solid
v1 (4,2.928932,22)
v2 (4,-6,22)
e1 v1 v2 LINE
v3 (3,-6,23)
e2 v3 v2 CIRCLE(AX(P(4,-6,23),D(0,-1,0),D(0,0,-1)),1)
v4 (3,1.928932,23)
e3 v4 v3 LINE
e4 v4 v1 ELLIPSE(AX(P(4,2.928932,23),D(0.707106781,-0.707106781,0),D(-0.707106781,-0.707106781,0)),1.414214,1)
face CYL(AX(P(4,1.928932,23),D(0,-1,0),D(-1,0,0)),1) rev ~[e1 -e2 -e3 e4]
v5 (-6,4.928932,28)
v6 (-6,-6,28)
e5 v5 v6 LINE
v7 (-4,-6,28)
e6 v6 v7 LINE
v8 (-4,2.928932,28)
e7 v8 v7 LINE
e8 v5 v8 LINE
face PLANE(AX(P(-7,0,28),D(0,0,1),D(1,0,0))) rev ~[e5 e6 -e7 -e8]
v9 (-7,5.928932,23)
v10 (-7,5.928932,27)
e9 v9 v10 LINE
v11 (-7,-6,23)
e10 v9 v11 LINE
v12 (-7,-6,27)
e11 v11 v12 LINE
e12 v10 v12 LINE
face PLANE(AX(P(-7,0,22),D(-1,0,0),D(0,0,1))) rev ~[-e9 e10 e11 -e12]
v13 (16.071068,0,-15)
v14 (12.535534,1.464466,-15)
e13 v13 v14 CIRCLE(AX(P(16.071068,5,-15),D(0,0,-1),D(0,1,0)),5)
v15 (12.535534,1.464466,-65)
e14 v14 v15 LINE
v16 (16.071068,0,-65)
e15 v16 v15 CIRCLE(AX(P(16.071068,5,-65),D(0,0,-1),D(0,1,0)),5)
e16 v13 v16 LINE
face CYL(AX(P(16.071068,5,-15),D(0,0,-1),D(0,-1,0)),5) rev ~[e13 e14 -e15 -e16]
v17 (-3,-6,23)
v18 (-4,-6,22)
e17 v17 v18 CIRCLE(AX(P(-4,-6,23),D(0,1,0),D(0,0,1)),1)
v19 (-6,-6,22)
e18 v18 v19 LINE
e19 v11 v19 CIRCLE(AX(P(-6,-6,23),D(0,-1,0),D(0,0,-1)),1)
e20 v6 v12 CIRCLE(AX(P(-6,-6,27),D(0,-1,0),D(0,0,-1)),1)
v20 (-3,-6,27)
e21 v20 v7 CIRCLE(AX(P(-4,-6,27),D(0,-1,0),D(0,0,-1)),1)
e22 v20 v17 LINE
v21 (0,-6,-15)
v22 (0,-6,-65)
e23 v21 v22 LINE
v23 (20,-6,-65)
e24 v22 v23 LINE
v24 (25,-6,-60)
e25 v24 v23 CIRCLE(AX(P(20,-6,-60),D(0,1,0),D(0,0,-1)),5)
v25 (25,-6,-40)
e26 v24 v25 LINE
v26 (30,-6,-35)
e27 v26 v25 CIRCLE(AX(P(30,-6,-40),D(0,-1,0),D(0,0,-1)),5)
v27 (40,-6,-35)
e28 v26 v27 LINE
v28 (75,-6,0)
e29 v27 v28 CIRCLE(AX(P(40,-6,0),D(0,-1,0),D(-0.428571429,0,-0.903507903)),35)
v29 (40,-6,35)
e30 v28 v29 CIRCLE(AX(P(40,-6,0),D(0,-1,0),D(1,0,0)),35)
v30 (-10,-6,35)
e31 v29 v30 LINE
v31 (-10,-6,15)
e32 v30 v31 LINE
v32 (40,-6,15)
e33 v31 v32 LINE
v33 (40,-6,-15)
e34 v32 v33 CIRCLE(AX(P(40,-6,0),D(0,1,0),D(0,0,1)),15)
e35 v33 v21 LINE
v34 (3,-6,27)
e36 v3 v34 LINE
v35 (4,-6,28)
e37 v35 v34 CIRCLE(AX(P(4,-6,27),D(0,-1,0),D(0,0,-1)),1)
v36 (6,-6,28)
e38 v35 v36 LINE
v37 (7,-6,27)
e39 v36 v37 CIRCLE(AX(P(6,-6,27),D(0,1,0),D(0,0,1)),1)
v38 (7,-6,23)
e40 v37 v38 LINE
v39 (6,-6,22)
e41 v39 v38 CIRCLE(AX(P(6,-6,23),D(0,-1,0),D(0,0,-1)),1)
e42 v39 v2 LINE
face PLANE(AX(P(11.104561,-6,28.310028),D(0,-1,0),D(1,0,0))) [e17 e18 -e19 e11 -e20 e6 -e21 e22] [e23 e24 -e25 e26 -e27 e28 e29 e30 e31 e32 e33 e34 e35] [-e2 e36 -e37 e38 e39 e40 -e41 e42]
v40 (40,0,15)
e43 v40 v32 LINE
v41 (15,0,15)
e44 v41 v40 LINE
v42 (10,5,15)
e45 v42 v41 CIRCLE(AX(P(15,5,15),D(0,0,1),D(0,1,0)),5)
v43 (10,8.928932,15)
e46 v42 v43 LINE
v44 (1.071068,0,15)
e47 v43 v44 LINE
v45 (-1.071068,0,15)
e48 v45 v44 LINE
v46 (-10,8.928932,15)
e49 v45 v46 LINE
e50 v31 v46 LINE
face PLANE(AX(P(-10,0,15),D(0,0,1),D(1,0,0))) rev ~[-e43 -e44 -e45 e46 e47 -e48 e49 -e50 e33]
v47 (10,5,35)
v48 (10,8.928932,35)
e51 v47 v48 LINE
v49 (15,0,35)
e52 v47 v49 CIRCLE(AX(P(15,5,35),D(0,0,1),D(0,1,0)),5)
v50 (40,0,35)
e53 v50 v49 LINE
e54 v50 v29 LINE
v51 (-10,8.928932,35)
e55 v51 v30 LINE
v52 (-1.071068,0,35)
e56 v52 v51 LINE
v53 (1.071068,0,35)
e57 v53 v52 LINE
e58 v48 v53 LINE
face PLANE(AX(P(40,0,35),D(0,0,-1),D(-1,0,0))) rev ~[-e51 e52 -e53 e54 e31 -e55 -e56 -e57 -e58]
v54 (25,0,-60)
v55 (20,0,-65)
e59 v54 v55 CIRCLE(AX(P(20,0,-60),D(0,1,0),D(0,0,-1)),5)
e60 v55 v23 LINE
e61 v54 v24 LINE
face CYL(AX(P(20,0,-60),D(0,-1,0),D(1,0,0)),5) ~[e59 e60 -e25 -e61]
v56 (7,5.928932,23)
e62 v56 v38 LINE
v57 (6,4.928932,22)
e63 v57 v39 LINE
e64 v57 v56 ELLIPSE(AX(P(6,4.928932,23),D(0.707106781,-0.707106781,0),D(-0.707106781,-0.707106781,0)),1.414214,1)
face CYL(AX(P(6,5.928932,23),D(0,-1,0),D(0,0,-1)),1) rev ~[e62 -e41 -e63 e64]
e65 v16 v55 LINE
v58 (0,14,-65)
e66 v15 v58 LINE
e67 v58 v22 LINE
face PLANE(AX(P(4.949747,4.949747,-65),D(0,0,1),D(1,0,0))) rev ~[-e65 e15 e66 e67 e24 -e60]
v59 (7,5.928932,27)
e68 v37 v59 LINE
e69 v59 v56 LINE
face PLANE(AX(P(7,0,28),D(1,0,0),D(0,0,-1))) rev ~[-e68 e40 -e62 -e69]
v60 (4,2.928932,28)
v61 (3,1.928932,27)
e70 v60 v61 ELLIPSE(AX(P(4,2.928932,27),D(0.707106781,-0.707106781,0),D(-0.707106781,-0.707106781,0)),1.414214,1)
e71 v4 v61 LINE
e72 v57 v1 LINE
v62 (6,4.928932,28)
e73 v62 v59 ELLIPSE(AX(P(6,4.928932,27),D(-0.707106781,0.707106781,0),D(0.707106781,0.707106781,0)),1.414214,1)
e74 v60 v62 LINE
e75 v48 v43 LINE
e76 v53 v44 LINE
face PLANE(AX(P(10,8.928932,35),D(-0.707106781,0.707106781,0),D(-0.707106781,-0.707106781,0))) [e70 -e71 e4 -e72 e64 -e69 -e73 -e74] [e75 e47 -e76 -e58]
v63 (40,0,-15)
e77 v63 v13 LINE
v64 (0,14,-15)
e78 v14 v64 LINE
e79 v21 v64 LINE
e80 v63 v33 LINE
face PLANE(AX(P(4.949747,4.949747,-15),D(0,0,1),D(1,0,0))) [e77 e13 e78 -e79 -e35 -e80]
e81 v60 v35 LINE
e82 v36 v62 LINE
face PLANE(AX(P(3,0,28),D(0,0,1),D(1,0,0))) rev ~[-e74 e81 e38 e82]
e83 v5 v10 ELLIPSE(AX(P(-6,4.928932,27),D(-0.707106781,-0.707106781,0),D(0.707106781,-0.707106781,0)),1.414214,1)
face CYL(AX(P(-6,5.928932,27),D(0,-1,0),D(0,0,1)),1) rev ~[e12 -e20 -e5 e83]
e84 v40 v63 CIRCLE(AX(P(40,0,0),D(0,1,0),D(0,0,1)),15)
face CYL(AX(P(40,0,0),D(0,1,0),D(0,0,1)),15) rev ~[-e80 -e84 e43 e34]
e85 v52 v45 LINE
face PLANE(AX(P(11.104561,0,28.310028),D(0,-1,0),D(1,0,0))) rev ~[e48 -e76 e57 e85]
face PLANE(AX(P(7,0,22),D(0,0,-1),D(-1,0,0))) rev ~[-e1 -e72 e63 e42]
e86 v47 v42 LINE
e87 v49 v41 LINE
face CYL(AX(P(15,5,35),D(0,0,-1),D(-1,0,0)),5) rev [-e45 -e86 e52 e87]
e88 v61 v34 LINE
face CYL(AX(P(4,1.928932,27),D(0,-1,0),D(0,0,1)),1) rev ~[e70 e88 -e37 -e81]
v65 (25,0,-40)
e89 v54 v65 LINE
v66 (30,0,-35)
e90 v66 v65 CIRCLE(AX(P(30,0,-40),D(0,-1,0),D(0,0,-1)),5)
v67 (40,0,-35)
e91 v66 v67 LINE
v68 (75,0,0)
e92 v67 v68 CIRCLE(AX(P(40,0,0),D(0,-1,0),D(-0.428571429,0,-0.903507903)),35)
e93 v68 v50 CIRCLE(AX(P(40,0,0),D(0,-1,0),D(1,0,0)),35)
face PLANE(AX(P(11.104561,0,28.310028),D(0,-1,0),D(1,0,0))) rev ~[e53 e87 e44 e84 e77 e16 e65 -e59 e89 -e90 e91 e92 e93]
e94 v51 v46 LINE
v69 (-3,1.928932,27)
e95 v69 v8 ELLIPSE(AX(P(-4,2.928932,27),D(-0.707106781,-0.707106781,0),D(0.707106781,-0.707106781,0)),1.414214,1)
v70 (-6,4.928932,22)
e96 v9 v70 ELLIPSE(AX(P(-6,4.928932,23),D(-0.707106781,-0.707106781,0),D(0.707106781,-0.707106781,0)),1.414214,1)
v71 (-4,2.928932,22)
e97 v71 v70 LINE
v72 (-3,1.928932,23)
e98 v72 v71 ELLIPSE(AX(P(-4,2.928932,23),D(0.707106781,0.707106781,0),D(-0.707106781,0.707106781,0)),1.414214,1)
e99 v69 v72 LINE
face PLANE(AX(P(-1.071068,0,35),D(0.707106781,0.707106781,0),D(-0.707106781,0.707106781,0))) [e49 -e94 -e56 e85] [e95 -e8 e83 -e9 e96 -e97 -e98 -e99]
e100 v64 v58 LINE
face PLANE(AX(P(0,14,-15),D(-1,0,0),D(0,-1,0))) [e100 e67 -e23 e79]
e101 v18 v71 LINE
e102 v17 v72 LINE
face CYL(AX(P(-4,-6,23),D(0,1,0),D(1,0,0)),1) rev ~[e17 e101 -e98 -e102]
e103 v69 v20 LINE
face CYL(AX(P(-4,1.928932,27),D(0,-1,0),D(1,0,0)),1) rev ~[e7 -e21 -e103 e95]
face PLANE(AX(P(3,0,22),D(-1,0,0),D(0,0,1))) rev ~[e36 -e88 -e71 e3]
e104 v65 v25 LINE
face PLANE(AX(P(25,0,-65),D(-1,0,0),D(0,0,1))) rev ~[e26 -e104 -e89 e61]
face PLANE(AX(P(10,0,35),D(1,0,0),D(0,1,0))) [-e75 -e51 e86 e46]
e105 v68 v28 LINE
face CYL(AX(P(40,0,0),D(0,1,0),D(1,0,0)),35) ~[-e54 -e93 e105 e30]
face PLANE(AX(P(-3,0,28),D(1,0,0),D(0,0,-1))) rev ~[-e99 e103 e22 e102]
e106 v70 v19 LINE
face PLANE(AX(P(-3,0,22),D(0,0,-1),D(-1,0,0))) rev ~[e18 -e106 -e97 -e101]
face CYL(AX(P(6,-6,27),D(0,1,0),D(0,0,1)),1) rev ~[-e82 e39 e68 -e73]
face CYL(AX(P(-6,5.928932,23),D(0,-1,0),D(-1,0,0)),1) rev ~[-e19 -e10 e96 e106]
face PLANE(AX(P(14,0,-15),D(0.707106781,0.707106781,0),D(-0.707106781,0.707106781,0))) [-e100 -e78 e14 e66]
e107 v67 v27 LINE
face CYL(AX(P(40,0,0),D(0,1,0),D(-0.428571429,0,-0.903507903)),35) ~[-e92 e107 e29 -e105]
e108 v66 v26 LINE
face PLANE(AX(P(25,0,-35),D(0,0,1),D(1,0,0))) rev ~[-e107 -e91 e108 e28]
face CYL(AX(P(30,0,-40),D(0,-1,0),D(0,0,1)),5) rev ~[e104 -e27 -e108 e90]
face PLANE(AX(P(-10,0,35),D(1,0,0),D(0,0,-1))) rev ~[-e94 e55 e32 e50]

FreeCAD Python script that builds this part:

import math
import FreeCAD as App
import Part
import Sketcher
from FreeCAD import Vector


def edges_at(feature, points):
    """Names of the edges that pass closest to the given points."""
    edges = feature.Shape.Edges
    near = lambda p: min(range(len(edges)), key=lambda i: edges[i].distToShape(Part.Vertex(*p))[0])
    return sorted({f"Edge{near(p) + 1}" for p in points})

doc = App.newDocument("Part")
params = doc.addObject("Spreadsheet::Sheet", "Params")
for row, (alias, value) in enumerate([
    ("sketch1_radius", "15 mm"),
    ("sketch1_radius2", "35 mm"),
    ("sketch1_width", "50 mm"),
    ("sketch1_width2", "40 mm"),
    ("sketch1_width3", "25 mm"),
    ("pad1_length", "6 mm"),
    ("sketch2_width", "14 mm"),
    ("pad2_length", "50 mm"),
    ("pad3_length", "20 mm"),
    ("fillet_radius", "5 mm"),
    ("sketch4_width", "4 mm"),
    ("sketch4_height", "6 mm"),
    ("fillet2_radius", "1 mm"),
], start=1):
    params.set(f"A{row}", alias)
    params.set(f"B{row}", "=" + value)
    params.setAlias(f"B{row}", alias)

body = doc.addObject("PartDesign::Body", "Body")

# Sketch on XZ plane
sketch1 = doc.addObject("Sketcher::SketchObject", "Sketch")
body.addObject(sketch1)
sketch1.AttachmentSupport = (doc.XZ_Plane, [""])
sketch1.MapMode = "FlatFace"
sketch1.addGeometry(Part.LineSegment(Vector(-10, 15, 0), Vector(40, 15, 0)), False)
sketch1.addGeometry(Part.ArcOfCircle(Part.Circle(Vector(40, 0, 0), Vector(0, 0, 1), 15), math.radians(-90), math.radians(90)), False)
sketch1.addGeometry(Part.LineSegment(Vector(40, -15, 0), Vector(0, -15, 0)), False)
sketch1.addGeometry(Part.LineSegment(Vector(0, -15, 0), Vector(0, -65, 0)), False)
sketch1.addGeometry(Part.LineSegment(Vector(0, -65, 0), Vector(25, -65, 0)), False)
sketch1.addGeometry(Part.LineSegment(Vector(25, -65, 0), Vector(25, -35, 0)), False)
sketch1.addGeometry(Part.LineSegment(Vector(25, -35, 0), Vector(40, -35, 0)), False)
sketch1.addGeometry(Part.ArcOfCircle(Part.Circle(Vector(40, 0, 0), Vector(0, 0, 1), 35), math.radians(-90), math.radians(0)), False)
sketch1.addGeometry(Part.ArcOfCircle(Part.Circle(Vector(40, 0, 0), Vector(0, 0, 1), 35), math.radians(0), math.radians(90)), False)
sketch1.addGeometry(Part.LineSegment(Vector(40, 35, 0), Vector(-10, 35, 0)), False)
sketch1.addGeometry(Part.LineSegment(Vector(-10, 35, 0), Vector(-10, 15, 0)), False)
sketch1.addGeometry(Part.LineSegment(Vector(-3, 22, 0), Vector(-7, 22, 0)), False)
sketch1.addGeometry(Part.LineSegment(Vector(-7, 22, 0), Vector(-7, 28, 0)), False)
sketch1.addGeometry(Part.LineSegment(Vector(-7, 28, 0), Vector(-3, 28, 0)), False)
sketch1.addGeometry(Part.LineSegment(Vector(-3, 28, 0), Vector(-3, 22, 0)), False)
sketch1.addGeometry(Part.LineSegment(Vector(7, 28, 0), Vector(7, 22, 0)), False)
sketch1.addGeometry(Part.LineSegment(Vector(7, 22, 0), Vector(3, 22, 0)), False)
sketch1.addGeometry(Part.LineSegment(Vector(3, 22, 0), Vector(3, 28, 0)), False)
sketch1.addGeometry(Part.LineSegment(Vector(3, 28, 0), Vector(7, 28, 0)), False)
sketch1.addConstraint(Sketcher.Constraint("Tangent", 0, 2, 1, 2))
sketch1.addConstraint(Sketcher.Constraint("Tangent", 1, 1, 2, 1))
sketch1.addConstraint(Sketcher.Constraint("Coincident", 2, 2, 3, 1))
sketch1.addConstraint(Sketcher.Constraint("Coincident", 3, 2, 4, 1))
sketch1.addConstraint(Sketcher.Constraint("Coincident", 4, 2, 5, 1))
sketch1.addConstraint(Sketcher.Constraint("Coincident", 5, 2, 6, 1))
sketch1.addConstraint(Sketcher.Constraint("Tangent", 6, 2, 7, 1))
sketch1.addConstraint(Sketcher.Constraint("Tangent", 7, 2, 8, 1))
sketch1.addConstraint(Sketcher.Constraint("Tangent", 8, 2, 9, 1))
sketch1.addConstraint(Sketcher.Constraint("Coincident", 9, 2, 10, 1))
sketch1.addConstraint(Sketcher.Constraint("Coincident", 10, 2, 0, 1))
sketch1.addConstraint(Sketcher.Constraint("Coincident", 11, 2, 12, 1))
sketch1.addConstraint(Sketcher.Constraint("Coincident", 12, 2, 13, 1))
sketch1.addConstraint(Sketcher.Constraint("Coincident", 13, 2, 14, 1))
sketch1.addConstraint(Sketcher.Constraint("Coincident", 14, 2, 11, 1))
sketch1.addConstraint(Sketcher.Constraint("Coincident", 15, 2, 16, 1))
sketch1.addConstraint(Sketcher.Constraint("Coincident", 16, 2, 17, 1))
sketch1.addConstraint(Sketcher.Constraint("Coincident", 17, 2, 18, 1))
sketch1.addConstraint(Sketcher.Constraint("Coincident", 18, 2, 15, 1))
sketch1.addConstraint(Sketcher.Constraint("Horizontal", 0))
sketch1.addConstraint(Sketcher.Constraint("Horizontal", 2))
sketch1.addConstraint(Sketcher.Constraint("Vertical", 3))
sketch1.addConstraint(Sketcher.Constraint("Horizontal", 4))
sketch1.addConstraint(Sketcher.Constraint("Vertical", 5))
sketch1.addConstraint(Sketcher.Constraint("Horizontal", 6))
sketch1.addConstraint(Sketcher.Constraint("Horizontal", 9))
sketch1.addConstraint(Sketcher.Constraint("Vertical", 10))
sketch1.addConstraint(Sketcher.Constraint("Horizontal", 11))
sketch1.addConstraint(Sketcher.Constraint("Vertical", 12))
sketch1.addConstraint(Sketcher.Constraint("Horizontal", 13))
sketch1.addConstraint(Sketcher.Constraint("Vertical", 14))
sketch1.addConstraint(Sketcher.Constraint("Vertical", 15))
sketch1.addConstraint(Sketcher.Constraint("Horizontal", 16))
sketch1.addConstraint(Sketcher.Constraint("Vertical", 17))
sketch1.addConstraint(Sketcher.Constraint("Horizontal", 18))
sketch1.addConstraint(Sketcher.Constraint("Coincident", 7, 3, 1, 3))
sketch1.addConstraint(Sketcher.Constraint("Equal", 7, 8))
sketch1.addConstraint(Sketcher.Constraint("Symmetric", 11, 2, 15, 2, -2))
sketch1.addConstraint(Sketcher.Constraint("Symmetric", 13, 2, 17, 2, -2))
sketch1.addConstraint(Sketcher.Constraint("PointOnObject", 1, 3, -1))
sketch1.addConstraint(Sketcher.Constraint("PointOnObject", 2, 2, -2))
sketch1.addConstraint(Sketcher.Constraint("PointOnObject", 7, 2, -1))
sketch1.addConstraint(Sketcher.Constraint("Equal", 9, 3))
sketch1.addConstraint(Sketcher.Constraint("Radius", 1, 15.0))
sketch1.addConstraint(Sketcher.Constraint("Radius", 7, 35.0))
sketch1.addConstraint(Sketcher.Constraint("DistanceX", 0, 1, 0, 2, 50.0))
sketch1.addConstraint(Sketcher.Constraint("DistanceX", 2, 2, 2, 1, 40.0))
sketch1.addConstraint(Sketcher.Constraint("DistanceX", 4, 1, 4, 2, 25.0))
sketch1.addConstraint(Sketcher.Constraint("DistanceX", 11, 2, 11, 1, 4.0))
sketch1.addConstraint(Sketcher.Constraint("DistanceY", 12, 1, 12, 2, 6.0))
sketch1.addConstraint(Sketcher.Constraint("DistanceX", 11, 2, -1, 1, 7.0))
sketch1.addConstraint(Sketcher.Constraint("DistanceY", -1, 1, 11, 2, 22.0))
sketch1.setExpression("Constraints[43]", "Params.sketch1_radius")
sketch1.setExpression("Constraints[44]", "Params.sketch1_radius2")
sketch1.setExpression("Constraints[45]", "Params.sketch1_width")
sketch1.setExpression("Constraints[46]", "Params.sketch1_width2")
sketch1.setExpression("Constraints[47]", "Params.sketch1_width3")
pad1 = doc.addObject("PartDesign::Pad", "Pad")
body.addObject(pad1)
pad1.Profile = sketch1
pad1.setExpression("Length", "Params.pad1_length")

# Sketch on XY plane
sketch2 = doc.addObject("Sketcher::SketchObject", "Sketch001")
body.addObject(sketch2)
sketch2.AttachmentSupport = (doc.XY_Plane, [""])
sketch2.MapMode = "FlatFace"
sketch2.AttachmentOffset = App.Placement(Vector(0, 0, -15), App.Rotation())
sketch2.addGeometry(Part.LineSegment(Vector(0, 0, 0), Vector(14, 0, 0)), False)
sketch2.addGeometry(Part.LineSegment(Vector(14, 0, 0), Vector(0, 14, 0)), False)
sketch2.addGeometry(Part.LineSegment(Vector(0, 14, 0), Vector(0, 0, 0)), False)
sketch2.addConstraint(Sketcher.Constraint("Coincident", 0, 2, 1, 1))
sketch2.addConstraint(Sketcher.Constraint("Coincident", 1, 2, 2, 1))
sketch2.addConstraint(Sketcher.Constraint("Coincident", 2, 2, 0, 1))
sketch2.addConstraint(Sketcher.Constraint("Horizontal", 0))
sketch2.addConstraint(Sketcher.Constraint("Vertical", 2))
sketch2.addConstraint(Sketcher.Constraint("Coincident", 2, 2, -1, 1))
sketch2.addConstraint(Sketcher.Constraint("Equal", 0, 2))
sketch2.addConstraint(Sketcher.Constraint("DistanceX", 0, 1, 0, 2, 14.0))
sketch2.setExpression("Constraints[7]", "Params.sketch2_width")
pad2 = doc.addObject("PartDesign::Pad", "Pad001")
body.addObject(pad2)
pad2.Profile = sketch2
pad2.setExpression("Length", "Params.pad2_length")
pad2.Reversed = True

# Sketch on XY plane
sketch3 = doc.addObject("Sketcher::SketchObject", "Sketch002")
body.addObject(sketch3)
sketch3.AttachmentSupport = (doc.XY_Plane, [""])
sketch3.MapMode = "FlatFace"
sketch3.AttachmentOffset = App.Placement(Vector(0, 0, 35), App.Rotation())
sketch3.addGeometry(Part.LineSegment(Vector(-10, 0, 0), Vector(-1, 0, 0)), False)
sketch3.addGeometry(Part.LineSegment(Vector(-1, 0, 0), Vector(-10, 9, 0)), False)
sketch3.addGeometry(Part.LineSegment(Vector(-10, 9, 0), Vector(-10, 0, 0)), False)
sketch3.addGeometry(Part.LineSegment(Vector(1, 0, 0), Vector(10, 0, 0)), False)
sketch3.addGeometry(Part.LineSegment(Vector(10, 0, 0), Vector(10, 9, 0)), False)
sketch3.addGeometry(Part.LineSegment(Vector(10, 9, 0), Vector(1, 0, 0)), False)
sketch3.addConstraint(Sketcher.Constraint("Coincident", 0, 2, 1, 1))
sketch3.addConstraint(Sketcher.Constraint("Coincident", 1, 2, 2, 1))
sketch3.addConstraint(Sketcher.Constraint("Coincident", 2, 2, 0, 1))
sketch3.addConstraint(Sketcher.Constraint("Coincident", 3, 2, 4, 1))
sketch3.addConstraint(Sketcher.Constraint("Coincident", 4, 2, 5, 1))
sketch3.addConstraint(Sketcher.Constraint("Coincident", 5, 2, 3, 1))
sketch3.addConstraint(Sketcher.Constraint("Horizontal", 0))
sketch3.addConstraint(Sketcher.Constraint("Vertical", 2))
sketch3.addConstraint(Sketcher.Constraint("Horizontal", 3))
sketch3.addConstraint(Sketcher.Constraint("Vertical", 4))
sketch3.addConstraint(Sketcher.Constraint("Symmetric", 2, 2, 3, 2, -1, 1))
sketch3.addConstraint(Sketcher.Constraint("Symmetric", 0, 2, 5, 2, -2))
sketch3.addConstraint(Sketcher.Constraint("Perpendicular", 1, 5))
sketch3.addConstraint(Sketcher.Constraint("Horizontal", 1, 2, 4, 2))
sketch3.addConstraint(Sketcher.Constraint("DistanceX", 1, 2, -1, 1, 10.0))
sketch3.addConstraint(Sketcher.Constraint("DistanceX", 0, 1, 0, 2, 8.928932))
pad3 = doc.addObject("PartDesign::Pad", "Pad002")
body.addObject(pad3)
pad3.Profile = sketch3
pad3.setExpression("Length", "Params.pad3_length")
pad3.Reversed = True
doc.recompute()

fillet = doc.addObject("PartDesign::Fillet", "Fillet")
body.addObject(fillet)
fillet.Base = (pad3, edges_at(pad3, [
    (25, -3, -35),
    (25, -3, -65),
    (10, 0, 25),
    (14, 0, -40),
]))
fillet.setExpression("Radius", "Params.fillet_radius")

# Sketch on XZ plane
sketch4 = doc.addObject("Sketcher::SketchObject", "Sketch003")
body.addObject(sketch4)
sketch4.AttachmentSupport = (doc.XZ_Plane, [""])
sketch4.MapMode = "FlatFace"
sketch4.addGeometry(Part.LineSegment(Vector(-7, 28, 0), Vector(-7, 22, 0)), False)
sketch4.addGeometry(Part.LineSegment(Vector(-7, 22, 0), Vector(-3, 22, 0)), False)
sketch4.addGeometry(Part.LineSegment(Vector(-3, 22, 0), Vector(-3, 28, 0)), False)
sketch4.addGeometry(Part.LineSegment(Vector(-3, 28, 0), Vector(-7, 28, 0)), False)
sketch4.addGeometry(Part.LineSegment(Vector(3, 22, 0), Vector(7, 22, 0)), False)
sketch4.addGeometry(Part.LineSegment(Vector(7, 22, 0), Vector(7, 28, 0)), False)
sketch4.addGeometry(Part.LineSegment(Vector(7, 28, 0), Vector(3, 28, 0)), False)
sketch4.addGeometry(Part.LineSegment(Vector(3, 28, 0), Vector(3, 22, 0)), False)
sketch4.addConstraint(Sketcher.Constraint("Coincident", 0, 2, 1, 1))
sketch4.addConstraint(Sketcher.Constraint("Coincident", 1, 2, 2, 1))
sketch4.addConstraint(Sketcher.Constraint("Coincident", 2, 2, 3, 1))
sketch4.addConstraint(Sketcher.Constraint("Coincident", 3, 2, 0, 1))
sketch4.addConstraint(Sketcher.Constraint("Coincident", 4, 2, 5, 1))
sketch4.addConstraint(Sketcher.Constraint("Coincident", 5, 2, 6, 1))
sketch4.addConstraint(Sketcher.Constraint("Coincident", 6, 2, 7, 1))
sketch4.addConstraint(Sketcher.Constraint("Coincident", 7, 2, 4, 1))
sketch4.addConstraint(Sketcher.Constraint("Vertical", 0))
sketch4.addConstraint(Sketcher.Constraint("Horizontal", 1))
sketch4.addConstraint(Sketcher.Constraint("Vertical", 2))
sketch4.addConstraint(Sketcher.Constraint("Horizontal", 3))
sketch4.addConstraint(Sketcher.Constraint("Horizontal", 4))
sketch4.addConstraint(Sketcher.Constraint("Vertical", 5))
sketch4.addConstraint(Sketcher.Constraint("Horizontal", 6))
sketch4.addConstraint(Sketcher.Constraint("Vertical", 7))
sketch4.addConstraint(Sketcher.Constraint("Symmetric", 0, 2, 4, 2, -2))
sketch4.addConstraint(Sketcher.Constraint("Symmetric", 2, 2, 6, 2, -2))
sketch4.addConstraint(Sketcher.Constraint("DistanceX", 1, 1, 1, 2, 4.0))
sketch4.addConstraint(Sketcher.Constraint("DistanceY", 0, 2, 0, 1, 6.0))
sketch4.addConstraint(Sketcher.Constraint("DistanceX", 0, 2, -1, 1, 7.0))
sketch4.addConstraint(Sketcher.Constraint("DistanceY", -1, 1, 0, 2, 22.0))
sketch4.setExpression("Constraints[18]", "Params.sketch4_width")
sketch4.setExpression("Constraints[19]", "Params.sketch4_height")
pocket1 = doc.addObject("PartDesign::Pocket", "Pocket")
body.addObject(pocket1)
pocket1.Profile = sketch4
pocket1.Type = "ThroughAll"
doc.recompute()

fillet2 = doc.addObject("PartDesign::Fillet", "Fillet001")
body.addObject(fillet2)
fillet2.Base = (pocket1, edges_at(pocket1, [
    (7, -0.036, 22),
    (-3, -2.036, 22),
    (7, -0.036, 28),
    (-3, -2.036, 28),
    (-7, -0.036, 28),
    (3, -2.036, 28),
    (-7, -0.036, 22),
    (3, -2.036, 22),
]))
fillet2.setExpression("Radius", "Params.fillet2_radius")

doc.recompute()
